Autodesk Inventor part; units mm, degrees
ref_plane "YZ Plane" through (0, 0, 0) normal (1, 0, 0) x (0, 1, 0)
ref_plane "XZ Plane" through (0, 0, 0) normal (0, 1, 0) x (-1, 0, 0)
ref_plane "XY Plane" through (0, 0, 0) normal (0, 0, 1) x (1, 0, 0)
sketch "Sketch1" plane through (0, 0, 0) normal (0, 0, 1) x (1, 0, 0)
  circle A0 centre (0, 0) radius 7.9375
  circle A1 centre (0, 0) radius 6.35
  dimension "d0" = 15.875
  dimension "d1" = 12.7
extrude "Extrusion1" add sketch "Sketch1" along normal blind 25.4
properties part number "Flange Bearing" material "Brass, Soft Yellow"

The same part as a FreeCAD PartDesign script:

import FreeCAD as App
import Part
import Sketcher
from FreeCAD import Vector
Q = App.Units.Quantity

doc = App.newDocument("Part")
body = doc.addObject("PartDesign::Body", "Body")

# Sketch on XY plane
sketch1 = body.newObject("Sketcher::SketchObject", "Sketch")
sketch1.AttachmentSupport = (doc.getObject("XY_Plane"), [""])
sketch1.MapMode = "FlatFace"
sketch1.addGeometry(Part.Circle(Vector(0, 0, 0), Vector(0, 0, 1), 8), False)
sketch1.addGeometry(Part.Circle(Vector(0, 0, 0), Vector(0, 0, 1), 6), False)
sketch1.addConstraint(Sketcher.Constraint("Coincident", 0, 3, -1, 1))
sketch1.addConstraint(Sketcher.Constraint("Coincident", 1, 3, -1, 1))
sketch1.addConstraint(Sketcher.Constraint("Diameter", 1, Q("0.5 in")))
sketch1.addConstraint(Sketcher.Constraint("Diameter", 0, Q("0.625 in")))
pad1 = body.newObject("PartDesign::Pad", "Pad")
pad1.Profile = sketch1
pad1.Length = Q("1 in")

doc.recompute()
